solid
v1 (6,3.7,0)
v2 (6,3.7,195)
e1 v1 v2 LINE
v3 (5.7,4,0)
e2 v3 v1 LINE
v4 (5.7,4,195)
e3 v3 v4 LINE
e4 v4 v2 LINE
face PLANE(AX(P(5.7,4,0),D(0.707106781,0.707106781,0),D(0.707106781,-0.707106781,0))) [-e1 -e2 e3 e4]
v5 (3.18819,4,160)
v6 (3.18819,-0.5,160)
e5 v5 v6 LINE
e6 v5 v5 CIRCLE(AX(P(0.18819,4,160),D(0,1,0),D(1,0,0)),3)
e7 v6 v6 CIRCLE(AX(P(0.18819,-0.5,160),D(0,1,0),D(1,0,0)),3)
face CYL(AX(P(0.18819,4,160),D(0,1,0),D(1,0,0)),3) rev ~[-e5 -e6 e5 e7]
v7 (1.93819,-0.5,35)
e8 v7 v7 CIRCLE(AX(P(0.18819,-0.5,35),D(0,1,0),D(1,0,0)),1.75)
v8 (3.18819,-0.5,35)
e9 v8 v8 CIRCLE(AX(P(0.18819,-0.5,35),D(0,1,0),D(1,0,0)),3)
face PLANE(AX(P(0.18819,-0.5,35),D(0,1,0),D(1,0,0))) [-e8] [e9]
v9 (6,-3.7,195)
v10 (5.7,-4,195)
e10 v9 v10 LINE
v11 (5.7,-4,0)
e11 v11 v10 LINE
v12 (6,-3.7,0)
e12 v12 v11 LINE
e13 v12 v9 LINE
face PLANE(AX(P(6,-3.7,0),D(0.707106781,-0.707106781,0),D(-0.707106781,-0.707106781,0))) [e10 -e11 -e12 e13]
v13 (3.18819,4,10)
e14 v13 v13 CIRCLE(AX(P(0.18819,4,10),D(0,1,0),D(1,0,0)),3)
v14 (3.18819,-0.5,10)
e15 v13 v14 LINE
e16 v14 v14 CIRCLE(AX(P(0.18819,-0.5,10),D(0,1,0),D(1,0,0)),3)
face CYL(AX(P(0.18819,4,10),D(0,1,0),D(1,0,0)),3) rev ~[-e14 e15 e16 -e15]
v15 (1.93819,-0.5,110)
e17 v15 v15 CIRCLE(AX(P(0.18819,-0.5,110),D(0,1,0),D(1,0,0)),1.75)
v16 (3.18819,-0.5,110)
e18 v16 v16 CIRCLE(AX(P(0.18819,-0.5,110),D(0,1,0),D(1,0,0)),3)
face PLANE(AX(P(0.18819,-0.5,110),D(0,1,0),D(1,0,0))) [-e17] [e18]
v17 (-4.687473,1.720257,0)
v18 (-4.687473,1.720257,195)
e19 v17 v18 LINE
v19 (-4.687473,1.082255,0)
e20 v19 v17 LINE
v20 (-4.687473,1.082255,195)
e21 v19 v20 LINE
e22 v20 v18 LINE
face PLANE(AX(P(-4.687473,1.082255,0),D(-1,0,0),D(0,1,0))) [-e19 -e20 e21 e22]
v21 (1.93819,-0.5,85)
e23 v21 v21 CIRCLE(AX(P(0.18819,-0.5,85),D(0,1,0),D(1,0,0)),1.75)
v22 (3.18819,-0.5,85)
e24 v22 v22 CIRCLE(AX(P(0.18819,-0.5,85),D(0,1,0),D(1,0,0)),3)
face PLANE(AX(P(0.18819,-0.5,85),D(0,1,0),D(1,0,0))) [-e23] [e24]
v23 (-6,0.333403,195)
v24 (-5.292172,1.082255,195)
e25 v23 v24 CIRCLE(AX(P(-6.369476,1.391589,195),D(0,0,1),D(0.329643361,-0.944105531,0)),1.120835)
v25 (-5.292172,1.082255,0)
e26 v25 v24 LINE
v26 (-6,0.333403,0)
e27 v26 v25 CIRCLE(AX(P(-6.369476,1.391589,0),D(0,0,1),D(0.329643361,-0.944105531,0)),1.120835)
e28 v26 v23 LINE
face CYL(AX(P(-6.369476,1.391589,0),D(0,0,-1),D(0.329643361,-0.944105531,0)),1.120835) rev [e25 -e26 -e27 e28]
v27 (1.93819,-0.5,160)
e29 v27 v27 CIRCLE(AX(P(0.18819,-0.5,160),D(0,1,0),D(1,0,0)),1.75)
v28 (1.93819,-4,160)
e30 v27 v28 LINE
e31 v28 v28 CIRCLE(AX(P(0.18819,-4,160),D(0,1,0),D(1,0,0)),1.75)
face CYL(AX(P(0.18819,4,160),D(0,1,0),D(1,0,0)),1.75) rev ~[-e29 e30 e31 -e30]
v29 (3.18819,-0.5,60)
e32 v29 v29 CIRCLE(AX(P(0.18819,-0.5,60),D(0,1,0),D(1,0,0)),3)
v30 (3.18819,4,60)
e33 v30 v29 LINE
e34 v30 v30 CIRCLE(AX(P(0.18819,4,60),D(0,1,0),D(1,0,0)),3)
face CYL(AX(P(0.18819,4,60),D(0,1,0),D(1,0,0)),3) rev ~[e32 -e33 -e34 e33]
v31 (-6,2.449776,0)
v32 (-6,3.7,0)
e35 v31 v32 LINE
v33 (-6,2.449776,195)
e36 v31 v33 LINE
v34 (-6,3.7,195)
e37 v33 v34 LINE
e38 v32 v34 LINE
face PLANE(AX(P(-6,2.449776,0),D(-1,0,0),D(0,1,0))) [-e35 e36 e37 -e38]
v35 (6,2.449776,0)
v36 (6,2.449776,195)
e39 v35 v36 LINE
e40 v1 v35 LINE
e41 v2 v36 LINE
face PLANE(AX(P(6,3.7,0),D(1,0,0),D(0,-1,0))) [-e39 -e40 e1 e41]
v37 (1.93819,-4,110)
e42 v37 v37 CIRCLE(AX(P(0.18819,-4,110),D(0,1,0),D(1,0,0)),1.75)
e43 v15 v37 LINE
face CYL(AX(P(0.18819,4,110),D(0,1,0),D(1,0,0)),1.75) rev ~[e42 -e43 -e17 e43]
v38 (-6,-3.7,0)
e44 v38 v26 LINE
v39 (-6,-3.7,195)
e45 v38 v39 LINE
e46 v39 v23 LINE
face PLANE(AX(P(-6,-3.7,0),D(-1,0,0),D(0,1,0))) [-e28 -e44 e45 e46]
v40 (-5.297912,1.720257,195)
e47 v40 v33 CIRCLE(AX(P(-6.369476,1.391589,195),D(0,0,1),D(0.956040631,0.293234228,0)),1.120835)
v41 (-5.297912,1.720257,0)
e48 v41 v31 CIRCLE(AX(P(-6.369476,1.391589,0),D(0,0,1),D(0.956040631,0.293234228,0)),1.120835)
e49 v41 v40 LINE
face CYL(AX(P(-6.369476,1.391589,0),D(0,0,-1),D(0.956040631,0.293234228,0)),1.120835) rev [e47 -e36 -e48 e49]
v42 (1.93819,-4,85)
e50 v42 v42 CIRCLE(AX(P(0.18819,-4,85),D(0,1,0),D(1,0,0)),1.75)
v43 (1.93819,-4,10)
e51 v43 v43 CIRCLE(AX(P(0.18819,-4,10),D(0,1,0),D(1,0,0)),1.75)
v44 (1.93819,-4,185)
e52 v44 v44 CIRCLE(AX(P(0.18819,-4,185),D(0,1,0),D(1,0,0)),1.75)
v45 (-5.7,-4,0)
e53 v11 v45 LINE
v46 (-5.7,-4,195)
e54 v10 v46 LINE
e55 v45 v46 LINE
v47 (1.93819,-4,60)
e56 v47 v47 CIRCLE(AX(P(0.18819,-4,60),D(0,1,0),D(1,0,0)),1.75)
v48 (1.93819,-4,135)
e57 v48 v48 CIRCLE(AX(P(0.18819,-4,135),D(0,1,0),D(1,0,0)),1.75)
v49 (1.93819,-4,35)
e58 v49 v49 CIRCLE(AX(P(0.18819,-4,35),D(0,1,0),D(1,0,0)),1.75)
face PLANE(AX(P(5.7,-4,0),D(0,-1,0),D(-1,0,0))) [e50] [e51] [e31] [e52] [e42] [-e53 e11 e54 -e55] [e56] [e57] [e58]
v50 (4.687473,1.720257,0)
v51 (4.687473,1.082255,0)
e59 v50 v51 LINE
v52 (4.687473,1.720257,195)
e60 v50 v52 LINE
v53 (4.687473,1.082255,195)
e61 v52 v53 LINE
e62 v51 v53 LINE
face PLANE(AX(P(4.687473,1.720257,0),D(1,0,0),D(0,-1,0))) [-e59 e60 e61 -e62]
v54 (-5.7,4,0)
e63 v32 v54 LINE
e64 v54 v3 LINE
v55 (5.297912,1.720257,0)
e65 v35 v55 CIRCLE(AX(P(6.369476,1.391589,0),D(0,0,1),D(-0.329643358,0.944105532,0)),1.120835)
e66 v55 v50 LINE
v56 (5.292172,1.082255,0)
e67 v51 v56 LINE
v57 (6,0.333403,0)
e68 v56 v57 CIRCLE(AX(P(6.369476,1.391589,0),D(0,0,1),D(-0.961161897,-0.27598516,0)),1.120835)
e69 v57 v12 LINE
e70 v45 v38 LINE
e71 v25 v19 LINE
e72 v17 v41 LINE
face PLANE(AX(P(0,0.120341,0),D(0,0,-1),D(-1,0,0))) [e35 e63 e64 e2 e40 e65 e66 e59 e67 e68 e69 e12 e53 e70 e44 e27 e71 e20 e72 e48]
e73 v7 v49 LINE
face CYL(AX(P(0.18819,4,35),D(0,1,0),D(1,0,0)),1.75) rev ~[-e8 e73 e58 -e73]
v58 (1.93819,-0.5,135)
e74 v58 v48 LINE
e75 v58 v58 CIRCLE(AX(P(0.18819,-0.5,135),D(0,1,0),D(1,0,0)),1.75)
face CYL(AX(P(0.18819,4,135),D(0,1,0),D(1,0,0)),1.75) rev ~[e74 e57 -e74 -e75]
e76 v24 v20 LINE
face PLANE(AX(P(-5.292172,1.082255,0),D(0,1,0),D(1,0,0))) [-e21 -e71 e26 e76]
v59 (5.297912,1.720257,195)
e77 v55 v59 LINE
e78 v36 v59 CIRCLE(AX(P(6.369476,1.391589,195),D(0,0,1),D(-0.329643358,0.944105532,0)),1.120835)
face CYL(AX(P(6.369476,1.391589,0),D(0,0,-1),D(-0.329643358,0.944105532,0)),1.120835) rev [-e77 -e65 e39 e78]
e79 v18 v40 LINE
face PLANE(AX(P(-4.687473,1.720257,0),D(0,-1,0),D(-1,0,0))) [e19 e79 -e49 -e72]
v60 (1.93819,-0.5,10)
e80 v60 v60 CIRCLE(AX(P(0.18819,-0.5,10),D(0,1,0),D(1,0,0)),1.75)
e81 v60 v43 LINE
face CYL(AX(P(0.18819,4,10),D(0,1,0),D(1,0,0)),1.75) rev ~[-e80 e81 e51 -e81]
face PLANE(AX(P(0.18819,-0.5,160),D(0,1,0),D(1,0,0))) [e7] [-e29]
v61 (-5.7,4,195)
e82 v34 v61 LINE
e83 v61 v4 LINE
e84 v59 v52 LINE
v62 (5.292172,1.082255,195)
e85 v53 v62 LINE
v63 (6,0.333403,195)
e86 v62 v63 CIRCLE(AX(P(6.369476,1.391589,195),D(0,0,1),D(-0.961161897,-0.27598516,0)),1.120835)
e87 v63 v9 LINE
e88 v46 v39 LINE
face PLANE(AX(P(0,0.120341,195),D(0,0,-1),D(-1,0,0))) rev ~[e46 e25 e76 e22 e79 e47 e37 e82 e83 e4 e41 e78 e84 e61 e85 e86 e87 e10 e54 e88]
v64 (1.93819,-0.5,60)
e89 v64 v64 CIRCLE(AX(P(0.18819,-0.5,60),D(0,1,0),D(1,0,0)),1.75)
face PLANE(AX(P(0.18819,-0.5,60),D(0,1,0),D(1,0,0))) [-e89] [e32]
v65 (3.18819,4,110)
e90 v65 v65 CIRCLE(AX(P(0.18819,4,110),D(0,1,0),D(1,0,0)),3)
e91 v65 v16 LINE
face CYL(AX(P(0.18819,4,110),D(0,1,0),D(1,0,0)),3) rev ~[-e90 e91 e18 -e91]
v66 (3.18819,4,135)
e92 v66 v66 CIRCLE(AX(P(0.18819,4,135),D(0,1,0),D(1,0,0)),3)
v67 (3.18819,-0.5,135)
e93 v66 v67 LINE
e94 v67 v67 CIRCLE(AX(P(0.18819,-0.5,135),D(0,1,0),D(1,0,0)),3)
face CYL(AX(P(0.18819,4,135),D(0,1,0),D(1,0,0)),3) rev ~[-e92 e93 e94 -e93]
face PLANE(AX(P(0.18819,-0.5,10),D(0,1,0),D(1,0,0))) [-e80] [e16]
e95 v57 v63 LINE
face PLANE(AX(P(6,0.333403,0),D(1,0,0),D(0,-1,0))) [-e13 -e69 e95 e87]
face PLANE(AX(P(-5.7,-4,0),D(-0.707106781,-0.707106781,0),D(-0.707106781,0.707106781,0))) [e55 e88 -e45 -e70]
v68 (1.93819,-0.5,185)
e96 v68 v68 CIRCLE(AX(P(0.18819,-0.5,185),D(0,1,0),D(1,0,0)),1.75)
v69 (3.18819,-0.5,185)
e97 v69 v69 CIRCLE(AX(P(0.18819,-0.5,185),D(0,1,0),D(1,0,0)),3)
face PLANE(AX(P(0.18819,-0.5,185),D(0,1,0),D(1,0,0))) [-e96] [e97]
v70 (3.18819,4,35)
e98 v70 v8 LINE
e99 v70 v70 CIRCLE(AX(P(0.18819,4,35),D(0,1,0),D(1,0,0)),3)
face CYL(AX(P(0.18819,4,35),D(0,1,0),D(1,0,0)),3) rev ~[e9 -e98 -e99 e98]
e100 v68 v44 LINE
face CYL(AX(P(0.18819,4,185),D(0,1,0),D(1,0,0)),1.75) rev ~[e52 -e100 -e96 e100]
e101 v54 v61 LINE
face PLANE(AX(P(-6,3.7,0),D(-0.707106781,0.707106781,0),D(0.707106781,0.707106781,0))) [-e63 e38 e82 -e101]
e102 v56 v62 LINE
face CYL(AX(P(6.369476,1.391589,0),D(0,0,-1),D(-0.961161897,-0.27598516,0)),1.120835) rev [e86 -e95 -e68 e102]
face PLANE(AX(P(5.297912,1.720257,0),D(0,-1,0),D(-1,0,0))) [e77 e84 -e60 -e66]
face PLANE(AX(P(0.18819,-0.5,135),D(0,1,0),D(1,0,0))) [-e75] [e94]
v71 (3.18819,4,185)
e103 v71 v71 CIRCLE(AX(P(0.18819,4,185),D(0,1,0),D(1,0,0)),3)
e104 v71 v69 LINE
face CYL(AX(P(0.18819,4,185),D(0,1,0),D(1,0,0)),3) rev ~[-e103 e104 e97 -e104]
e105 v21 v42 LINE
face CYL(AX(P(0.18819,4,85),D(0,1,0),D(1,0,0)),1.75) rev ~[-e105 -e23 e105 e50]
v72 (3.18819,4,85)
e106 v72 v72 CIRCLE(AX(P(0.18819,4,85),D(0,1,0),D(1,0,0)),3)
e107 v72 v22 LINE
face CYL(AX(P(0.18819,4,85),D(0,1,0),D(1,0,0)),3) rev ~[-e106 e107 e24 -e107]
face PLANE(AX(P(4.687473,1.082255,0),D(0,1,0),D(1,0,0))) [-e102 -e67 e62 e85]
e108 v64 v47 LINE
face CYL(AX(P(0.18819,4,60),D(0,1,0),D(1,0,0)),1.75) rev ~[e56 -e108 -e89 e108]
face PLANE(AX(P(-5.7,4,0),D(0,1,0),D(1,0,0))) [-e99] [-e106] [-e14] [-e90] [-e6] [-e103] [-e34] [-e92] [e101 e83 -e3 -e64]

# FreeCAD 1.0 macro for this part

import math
import FreeCAD as App
import Part
import Sketcher

V = App.Vector

doc = App.newDocument("Part")
params = doc.addObject("Spreadsheet::Sheet", "Params")
for row, (alias, value) in enumerate([
    ("sketch1_width", "11.4 mm"),
    ("pad1_length", "195 mm"),
    ("sketch2_diameter", "6 mm"),
    ("sketch2_diameter2", "3.5 mm"),
    ("pocket1_length", "4.5 mm"),
    ("sketch3_diameter", "3.5 mm"),
    ("linearpattern_pitch", "25 mm"),
], start=1):
    params.set(f"A{row}", alias)
    params.set(f"B{row}", "=" + value)
    params.setAlias(f"B{row}", alias)

body = doc.addObject("PartDesign::Body", "Body")

sketch1 = body.newObject("Sketcher::SketchObject", "Sketch")
sketch1.AttachmentSupport = (doc.getObject("XY_Plane"), [""])
sketch1.MapMode = "FlatFace"
sketch1.addGeometry([
    Part.LineSegment(V(-5.7, 4, 0), V(-6, 3.7, 0)),
    Part.LineSegment(V(-6, 3.7, 0), V(-6, 2.45, 0)),
    Part.ArcOfCircle(Part.Circle(V(-6.37, 1.39, 0), V(0, 0, 1), 1.12), math.radians(17), math.radians(71)),
    Part.LineSegment(V(-5.3, 1.72, 0), V(-4.69, 1.72, 0)),
    Part.LineSegment(V(-4.69, 1.72, 0), V(-4.69, 1.08, 0)),
    Part.LineSegment(V(-4.69, 1.08, 0), V(-5.29, 1.08, 0)),
    Part.ArcOfCircle(Part.Circle(V(-6.37, 1.39, 0), V(0, 0, 1), 1.12), math.radians(-71), math.radians(-16)),
    Part.LineSegment(V(-6, 0.33, 0), V(-6, -3.7, 0)),
    Part.LineSegment(V(-6, -3.7, 0), V(-5.7, -4, 0)),
    Part.LineSegment(V(-5.7, -4, 0), V(5.7, -4, 0)),
    Part.LineSegment(V(5.7, -4, 0), V(6, -3.7, 0)),
    Part.LineSegment(V(6, -3.7, 0), V(6, 0.33, 0)),
    Part.ArcOfCircle(Part.Circle(V(6.37, 1.39, 0), V(0, 0, 1), 1.12), math.radians(-164), math.radians(-109)),
    Part.LineSegment(V(5.29, 1.08, 0), V(4.69, 1.08, 0)),
    Part.LineSegment(V(4.69, 1.08, 0), V(4.69, 1.72, 0)),
    Part.LineSegment(V(4.69, 1.72, 0), V(5.3, 1.72, 0)),
    Part.ArcOfCircle(Part.Circle(V(6.37, 1.39, 0), V(0, 0, 1), 1.12), math.radians(109), math.radians(163)),
    Part.LineSegment(V(6, 2.45, 0), V(6, 3.7, 0)),
    Part.LineSegment(V(6, 3.7, 0), V(5.7, 4, 0)),
    Part.LineSegment(V(5.7, 4, 0), V(-5.7, 4, 0)),
], False)
sketch1.addConstraint([
    Sketcher.Constraint("Coincident", 0, 2, 1, 1),
    Sketcher.Constraint("Coincident", 1, 2, 2, 2),
    Sketcher.Constraint("Coincident", 2, 1, 3, 1),
    Sketcher.Constraint("Coincident", 3, 2, 4, 1),
    Sketcher.Constraint("Coincident", 4, 2, 5, 1),
    Sketcher.Constraint("Coincident", 5, 2, 6, 2),
    Sketcher.Constraint("Coincident", 6, 1, 7, 1),
    Sketcher.Constraint("Coincident", 7, 2, 8, 1),
    Sketcher.Constraint("Coincident", 8, 2, 9, 1),
    Sketcher.Constraint("Coincident", 9, 2, 10, 1),
    Sketcher.Constraint("Coincident", 10, 2, 11, 1),
    Sketcher.Constraint("Coincident", 11, 2, 12, 2),
    Sketcher.Constraint("Coincident", 12, 1, 13, 1),
    Sketcher.Constraint("Coincident", 13, 2, 14, 1),
    Sketcher.Constraint("Coincident", 14, 2, 15, 1),
    Sketcher.Constraint("Coincident", 15, 2, 16, 2),
    Sketcher.Constraint("Coincident", 16, 1, 17, 1),
    Sketcher.Constraint("Coincident", 17, 2, 18, 1),
    Sketcher.Constraint("Coincident", 18, 2, 19, 1),
    Sketcher.Constraint("Coincident", 19, 2, 0, 1),
    Sketcher.Constraint("Vertical", 1),
    Sketcher.Constraint("Horizontal", 3),
    Sketcher.Constraint("Vertical", 4),
    Sketcher.Constraint("Horizontal", 5),
    Sketcher.Constraint("Vertical", 7),
    Sketcher.Constraint("Horizontal", 9),
    Sketcher.Constraint("Vertical", 11),
    Sketcher.Constraint("Horizontal", 13),
    Sketcher.Constraint("Vertical", 14),
    Sketcher.Constraint("Horizontal", 15),
    Sketcher.Constraint("Vertical", 17),
    Sketcher.Constraint("Horizontal", 19),
    Sketcher.Constraint("Coincident", 6, 3, 2, 3),
    Sketcher.Constraint("Coincident", 16, 3, 12, 3),
    Sketcher.Constraint("Equal", 2, 6),
    Sketcher.Constraint("Equal", 6, 12),
    Sketcher.Constraint("Equal", 12, 16),
    Sketcher.Constraint("Symmetric", 0, 2, 10, 2, -1, 1),
    Sketcher.Constraint("Symmetric", 7, 2, 17, 2, -1, 1),
    Sketcher.Constraint("Symmetric", 8, 2, 18, 2, -1, 1),
    Sketcher.Constraint("Symmetric", 2, 3, 12, 3, -2),
    Sketcher.Constraint("Symmetric", 7, 2, 10, 2, -2),
    Sketcher.Constraint("Symmetric", 4, 2, 13, 2, -2),
    Sketcher.Constraint("Perpendicular", 0, 8),
    Sketcher.Constraint("Perpendicular", 8, 10),
    Sketcher.Constraint("Horizontal", 3, 2, 14, 2),
    Sketcher.Constraint("Vertical", 9, 2, 18, 2),
    Sketcher.Constraint("DistanceX", 9, 1, 9, 2, 11.4),
    Sketcher.Constraint("DistanceX", 0, 2, -1, 1, 6.0),
    Sketcher.Constraint("DistanceY", 8, 2, -1, 1, 4.0),
    Sketcher.Constraint("DistanceY", 4, 2, 4, 1, 0.638001),
    Sketcher.Constraint("DistanceX", 5, 2, 5, 1, 0.604699),
    Sketcher.Constraint("Radius", 2, 1.120835),
    Sketcher.Constraint("DistanceX", 3, 1, 3, 2, 0.610439),
    Sketcher.Constraint("DistanceY", 1, 2, 1, 1, 1.250224),
    Sketcher.Constraint("DistanceY", 7, 2, 7, 1, 4.033403),
])
sketch1.setExpression("Constraints[47]", "Params.sketch1_width")
pad1 = body.newObject("PartDesign::Pad", "Pad")
pad1.Profile = sketch1
pad1.setExpression("Length", "Params.pad1_length")

sketch2 = body.newObject("Sketcher::SketchObject", "Sketch001")
sketch2.AttachmentSupport = (doc.getObject("XZ_Plane"), [""])
sketch2.MapMode = "FlatFace"
sketch2.AttachmentOffset = App.Placement(V(0, 0, -4), App.Rotation())
sketch2.addGeometry([
    Part.Circle(V(0.2, 10, 0), V(0, 0, 1), 3),
    Part.Circle(V(0.2, 10, 0), V(0, 0, 1), 1.8),
], False)
sketch2.addConstraint([
    Sketcher.Constraint("Coincident", 1, 3, 0, 3),
    Sketcher.Constraint("Diameter", 0, 6.0),
    Sketcher.Constraint("Diameter", 1, 3.5),
    Sketcher.Constraint("DistanceY", -1, 1, 0, 3, 10.0),
    Sketcher.Constraint("DistanceX", -1, 1, 0, 3, 0.18819),
])
sketch2.setExpression("Constraints[1]", "Params.sketch2_diameter")
sketch2.setExpression("Constraints[2]", "Params.sketch2_diameter2")
pocket1 = body.newObject("PartDesign::Pocket", "Pocket")
pocket1.Profile = sketch2
pocket1.setExpression("Length", "Params.pocket1_length")
pocket1.Reversed = True

sketch3 = body.newObject("Sketcher::SketchObject", "Sketch002")
sketch3.AttachmentSupport = (doc.getObject("XZ_Plane"), [""])
sketch3.MapMode = "FlatFace"
sketch3.AttachmentOffset = App.Placement(V(0, 0, -4), App.Rotation())
sketch3.addGeometry(Part.Circle(V(0.2, 10, 0), V(0, 0, 1), 1.8), False)
sketch3.addConstraint([
    Sketcher.Constraint("Diameter", 0, 3.5),
    Sketcher.Constraint("DistanceY", -1, 1, 0, 3, 10.0),
    Sketcher.Constraint("DistanceX", -1, 1, 0, 3, 0.18819),
])
sketch3.setExpression("Constraints[0]", "Params.sketch3_diameter")
pocket2 = body.newObject("PartDesign::Pocket", "Pocket001")
pocket2.Profile = sketch3
pocket2.Type = "ThroughAll"
pocket2.Reversed = True
doc.recompute()

linearpattern = body.newObject("PartDesign::LinearPattern", "LinearPattern")
linearpattern.Originals = [pocket1, pocket2]
linearpattern.Direction = (doc.getObject("Z_Axis"), [""])
linearpattern.Mode = "offset"
linearpattern.setExpression("Offset", "Params.linearpattern_pitch")
linearpattern.Occurrences = 12
body.Tip = linearpattern

doc.recompute()
